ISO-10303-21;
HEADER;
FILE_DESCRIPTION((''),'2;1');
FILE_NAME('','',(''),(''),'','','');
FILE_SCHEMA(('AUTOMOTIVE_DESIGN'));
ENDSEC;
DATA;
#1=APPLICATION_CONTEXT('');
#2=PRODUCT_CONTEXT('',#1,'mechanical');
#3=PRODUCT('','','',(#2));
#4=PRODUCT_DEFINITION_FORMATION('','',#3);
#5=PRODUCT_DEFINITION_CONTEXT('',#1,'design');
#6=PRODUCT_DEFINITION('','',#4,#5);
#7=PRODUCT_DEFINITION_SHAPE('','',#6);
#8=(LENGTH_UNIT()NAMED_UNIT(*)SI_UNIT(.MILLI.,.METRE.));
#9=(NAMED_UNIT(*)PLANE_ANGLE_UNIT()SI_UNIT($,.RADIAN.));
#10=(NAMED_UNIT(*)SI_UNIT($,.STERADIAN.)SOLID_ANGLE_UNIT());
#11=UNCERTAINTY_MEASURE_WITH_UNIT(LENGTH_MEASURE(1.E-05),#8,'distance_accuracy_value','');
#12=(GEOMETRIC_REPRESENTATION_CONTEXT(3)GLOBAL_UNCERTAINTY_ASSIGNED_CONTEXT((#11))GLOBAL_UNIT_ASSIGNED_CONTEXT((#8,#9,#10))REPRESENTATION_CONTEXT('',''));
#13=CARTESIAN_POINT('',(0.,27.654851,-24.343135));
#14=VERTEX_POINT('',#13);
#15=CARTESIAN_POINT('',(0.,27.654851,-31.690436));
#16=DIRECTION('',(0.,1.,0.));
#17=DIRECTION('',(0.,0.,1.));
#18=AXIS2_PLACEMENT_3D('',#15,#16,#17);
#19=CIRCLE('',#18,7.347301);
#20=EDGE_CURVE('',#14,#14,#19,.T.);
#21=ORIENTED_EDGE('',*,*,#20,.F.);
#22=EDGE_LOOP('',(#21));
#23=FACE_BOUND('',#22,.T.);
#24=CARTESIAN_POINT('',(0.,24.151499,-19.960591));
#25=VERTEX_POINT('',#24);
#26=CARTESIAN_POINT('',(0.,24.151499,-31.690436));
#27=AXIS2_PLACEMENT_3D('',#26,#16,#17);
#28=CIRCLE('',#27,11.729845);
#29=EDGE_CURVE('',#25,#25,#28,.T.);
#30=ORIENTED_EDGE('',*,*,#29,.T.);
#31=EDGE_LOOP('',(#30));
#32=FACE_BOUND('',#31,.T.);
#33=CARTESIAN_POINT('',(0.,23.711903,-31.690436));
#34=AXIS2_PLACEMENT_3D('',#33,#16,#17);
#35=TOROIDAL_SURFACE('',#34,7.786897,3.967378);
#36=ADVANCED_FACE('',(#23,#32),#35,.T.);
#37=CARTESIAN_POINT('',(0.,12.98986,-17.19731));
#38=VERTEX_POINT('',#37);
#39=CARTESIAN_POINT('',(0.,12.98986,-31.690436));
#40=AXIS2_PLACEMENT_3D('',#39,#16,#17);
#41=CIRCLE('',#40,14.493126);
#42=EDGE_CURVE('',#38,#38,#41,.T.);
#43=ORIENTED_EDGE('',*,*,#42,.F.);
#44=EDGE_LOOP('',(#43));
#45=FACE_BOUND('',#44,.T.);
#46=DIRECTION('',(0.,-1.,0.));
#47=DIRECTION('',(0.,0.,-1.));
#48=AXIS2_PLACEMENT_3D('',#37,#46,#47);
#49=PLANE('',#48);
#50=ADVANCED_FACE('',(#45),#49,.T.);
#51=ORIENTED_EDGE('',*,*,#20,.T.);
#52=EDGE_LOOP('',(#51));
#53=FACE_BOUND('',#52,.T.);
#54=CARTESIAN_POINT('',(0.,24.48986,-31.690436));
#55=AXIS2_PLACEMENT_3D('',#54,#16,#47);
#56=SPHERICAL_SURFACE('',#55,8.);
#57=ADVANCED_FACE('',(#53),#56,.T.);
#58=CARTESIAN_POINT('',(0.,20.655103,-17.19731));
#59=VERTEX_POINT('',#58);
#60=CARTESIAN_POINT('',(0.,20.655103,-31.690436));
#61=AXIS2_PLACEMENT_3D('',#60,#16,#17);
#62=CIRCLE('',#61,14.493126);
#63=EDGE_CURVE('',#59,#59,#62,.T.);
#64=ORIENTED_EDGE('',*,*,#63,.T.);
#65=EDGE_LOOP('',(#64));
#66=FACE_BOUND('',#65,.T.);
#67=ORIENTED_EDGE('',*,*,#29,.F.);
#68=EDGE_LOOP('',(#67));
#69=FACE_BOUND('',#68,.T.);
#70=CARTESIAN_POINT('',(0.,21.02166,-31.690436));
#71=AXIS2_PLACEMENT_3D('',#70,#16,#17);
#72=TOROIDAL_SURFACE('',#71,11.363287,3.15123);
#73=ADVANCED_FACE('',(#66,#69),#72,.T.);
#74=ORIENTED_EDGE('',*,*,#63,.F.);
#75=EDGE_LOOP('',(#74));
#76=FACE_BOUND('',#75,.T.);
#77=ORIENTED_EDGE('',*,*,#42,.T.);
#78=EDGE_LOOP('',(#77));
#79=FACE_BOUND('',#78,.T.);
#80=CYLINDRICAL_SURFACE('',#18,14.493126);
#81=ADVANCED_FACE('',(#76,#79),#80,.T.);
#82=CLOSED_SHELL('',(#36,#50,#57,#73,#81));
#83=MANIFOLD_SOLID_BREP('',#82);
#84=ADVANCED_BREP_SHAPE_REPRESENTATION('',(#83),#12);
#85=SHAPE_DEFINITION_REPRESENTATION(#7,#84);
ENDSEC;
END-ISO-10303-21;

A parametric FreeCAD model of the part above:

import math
import FreeCAD as App
import Part
import Sketcher
from FreeCAD import Vector

doc = App.newDocument("Part")
body = doc.addObject("PartDesign::Body", "Body")

# Sketch on YZ plane
sketch1 = body.newObject("Sketcher::SketchObject", "Sketch")
sketch1.AttachmentSupport = (doc.getObject("YZ_Plane"), [""])
sketch1.MapMode = "FlatFace"
sketch1.addGeometry(Part.LineSegment(Vector(20.7, -17.2, 0), Vector(13, -17.2, 0)), False)
sketch1.addGeometry(Part.LineSegment(Vector(13, -17.2, 0), Vector(13, -31.7, 0)), False)
sketch1.addGeometry(Part.LineSegment(Vector(13, -31.7, 0), Vector(32.5, -31.7, 0)), False)
sketch1.addGeometry(Part.ArcOfCircle(Part.Circle(Vector(24.5, -31.7, 0), Vector(0, 0, 1), 8), math.radians(0), math.radians(67)), False)
sketch1.addGeometry(Part.ArcOfCircle(Part.Circle(Vector(23.7, -23.9, 0), Vector(0, 0, 1), 4), math.radians(-6), math.radians(84)), False)
sketch1.addGeometry(Part.ArcOfCircle(Part.Circle(Vector(21, -20.3, 0), Vector(0, 0, 1), 3.2), math.radians(7), math.radians(97)), False)
sketch1.addGeometry(Part.LineSegment(Vector(32.5, -31.7, 0), Vector(13, -31.7, 0)), True)  # axis
sketch1.addConstraint(Sketcher.Constraint("Coincident", 0, 2, 1, 1))
sketch1.addConstraint(Sketcher.Constraint("Coincident", 1, 2, 2, 1))
sketch1.addConstraint(Sketcher.Constraint("Coincident", 2, 2, 3, 1))
sketch1.addConstraint(Sketcher.Constraint("Coincident", 3, 2, 4, 1))
sketch1.addConstraint(Sketcher.Constraint("Coincident", 4, 2, 5, 1))
sketch1.addConstraint(Sketcher.Constraint("Coincident", 5, 2, 0, 1))
sketch1.addConstraint(Sketcher.Constraint("Horizontal", 0))
sketch1.addConstraint(Sketcher.Constraint("Vertical", 1))
sketch1.addConstraint(Sketcher.Constraint("Horizontal", 2))
sketch1.addConstraint(Sketcher.Constraint("Horizontal", 6))
sketch1.addConstraint(Sketcher.Constraint("Coincident", 6, 1, 2, 2))
sketch1.addConstraint(Sketcher.Constraint("Horizontal", 3, 3, 1, 2))
sketch1.addConstraint(Sketcher.Constraint("Vertical", 0, 2, 6, 2))
sketch1.addConstraint(Sketcher.Constraint("Radius", 3, 8.0))
sketch1.addConstraint(Sketcher.Constraint("DistanceX", 2, 1, 2, 2, 19.5))
sketch1.addConstraint(Sketcher.Constraint("Radius", 5, 3.15123))
sketch1.addConstraint(Sketcher.Constraint("Radius", 4, 3.967378))
sketch1.addConstraint(Sketcher.Constraint("DistanceX", -1, 1, 4, 2, 24.151499))
sketch1.addConstraint(Sketcher.Constraint("DistanceX", 5, 3, 3, 3, 3.468199))
sketch1.addConstraint(Sketcher.Constraint("DistanceY", 3, 3, 3, 2, 7.347301))
sketch1.addConstraint(Sketcher.Constraint("DistanceX", 5, 2, 4, 3, 3.0568))
sketch1.addConstraint(Sketcher.Constraint("DistanceX", 0, 2, 0, 1, 7.665243))
sketch1.addConstraint(Sketcher.Constraint("DistanceY", 1, 2, 1, 1, 14.493126))
sketch1.addConstraint(Sketcher.Constraint("DistanceY", 4, 3, -1, 1, 23.903539))
revolution = body.newObject("PartDesign::Revolution", "Revolution")
revolution.Profile = sketch1
revolution.ReferenceAxis = (sketch1, ["Axis0"])
revolution.Angle = 360

doc.recompute()
